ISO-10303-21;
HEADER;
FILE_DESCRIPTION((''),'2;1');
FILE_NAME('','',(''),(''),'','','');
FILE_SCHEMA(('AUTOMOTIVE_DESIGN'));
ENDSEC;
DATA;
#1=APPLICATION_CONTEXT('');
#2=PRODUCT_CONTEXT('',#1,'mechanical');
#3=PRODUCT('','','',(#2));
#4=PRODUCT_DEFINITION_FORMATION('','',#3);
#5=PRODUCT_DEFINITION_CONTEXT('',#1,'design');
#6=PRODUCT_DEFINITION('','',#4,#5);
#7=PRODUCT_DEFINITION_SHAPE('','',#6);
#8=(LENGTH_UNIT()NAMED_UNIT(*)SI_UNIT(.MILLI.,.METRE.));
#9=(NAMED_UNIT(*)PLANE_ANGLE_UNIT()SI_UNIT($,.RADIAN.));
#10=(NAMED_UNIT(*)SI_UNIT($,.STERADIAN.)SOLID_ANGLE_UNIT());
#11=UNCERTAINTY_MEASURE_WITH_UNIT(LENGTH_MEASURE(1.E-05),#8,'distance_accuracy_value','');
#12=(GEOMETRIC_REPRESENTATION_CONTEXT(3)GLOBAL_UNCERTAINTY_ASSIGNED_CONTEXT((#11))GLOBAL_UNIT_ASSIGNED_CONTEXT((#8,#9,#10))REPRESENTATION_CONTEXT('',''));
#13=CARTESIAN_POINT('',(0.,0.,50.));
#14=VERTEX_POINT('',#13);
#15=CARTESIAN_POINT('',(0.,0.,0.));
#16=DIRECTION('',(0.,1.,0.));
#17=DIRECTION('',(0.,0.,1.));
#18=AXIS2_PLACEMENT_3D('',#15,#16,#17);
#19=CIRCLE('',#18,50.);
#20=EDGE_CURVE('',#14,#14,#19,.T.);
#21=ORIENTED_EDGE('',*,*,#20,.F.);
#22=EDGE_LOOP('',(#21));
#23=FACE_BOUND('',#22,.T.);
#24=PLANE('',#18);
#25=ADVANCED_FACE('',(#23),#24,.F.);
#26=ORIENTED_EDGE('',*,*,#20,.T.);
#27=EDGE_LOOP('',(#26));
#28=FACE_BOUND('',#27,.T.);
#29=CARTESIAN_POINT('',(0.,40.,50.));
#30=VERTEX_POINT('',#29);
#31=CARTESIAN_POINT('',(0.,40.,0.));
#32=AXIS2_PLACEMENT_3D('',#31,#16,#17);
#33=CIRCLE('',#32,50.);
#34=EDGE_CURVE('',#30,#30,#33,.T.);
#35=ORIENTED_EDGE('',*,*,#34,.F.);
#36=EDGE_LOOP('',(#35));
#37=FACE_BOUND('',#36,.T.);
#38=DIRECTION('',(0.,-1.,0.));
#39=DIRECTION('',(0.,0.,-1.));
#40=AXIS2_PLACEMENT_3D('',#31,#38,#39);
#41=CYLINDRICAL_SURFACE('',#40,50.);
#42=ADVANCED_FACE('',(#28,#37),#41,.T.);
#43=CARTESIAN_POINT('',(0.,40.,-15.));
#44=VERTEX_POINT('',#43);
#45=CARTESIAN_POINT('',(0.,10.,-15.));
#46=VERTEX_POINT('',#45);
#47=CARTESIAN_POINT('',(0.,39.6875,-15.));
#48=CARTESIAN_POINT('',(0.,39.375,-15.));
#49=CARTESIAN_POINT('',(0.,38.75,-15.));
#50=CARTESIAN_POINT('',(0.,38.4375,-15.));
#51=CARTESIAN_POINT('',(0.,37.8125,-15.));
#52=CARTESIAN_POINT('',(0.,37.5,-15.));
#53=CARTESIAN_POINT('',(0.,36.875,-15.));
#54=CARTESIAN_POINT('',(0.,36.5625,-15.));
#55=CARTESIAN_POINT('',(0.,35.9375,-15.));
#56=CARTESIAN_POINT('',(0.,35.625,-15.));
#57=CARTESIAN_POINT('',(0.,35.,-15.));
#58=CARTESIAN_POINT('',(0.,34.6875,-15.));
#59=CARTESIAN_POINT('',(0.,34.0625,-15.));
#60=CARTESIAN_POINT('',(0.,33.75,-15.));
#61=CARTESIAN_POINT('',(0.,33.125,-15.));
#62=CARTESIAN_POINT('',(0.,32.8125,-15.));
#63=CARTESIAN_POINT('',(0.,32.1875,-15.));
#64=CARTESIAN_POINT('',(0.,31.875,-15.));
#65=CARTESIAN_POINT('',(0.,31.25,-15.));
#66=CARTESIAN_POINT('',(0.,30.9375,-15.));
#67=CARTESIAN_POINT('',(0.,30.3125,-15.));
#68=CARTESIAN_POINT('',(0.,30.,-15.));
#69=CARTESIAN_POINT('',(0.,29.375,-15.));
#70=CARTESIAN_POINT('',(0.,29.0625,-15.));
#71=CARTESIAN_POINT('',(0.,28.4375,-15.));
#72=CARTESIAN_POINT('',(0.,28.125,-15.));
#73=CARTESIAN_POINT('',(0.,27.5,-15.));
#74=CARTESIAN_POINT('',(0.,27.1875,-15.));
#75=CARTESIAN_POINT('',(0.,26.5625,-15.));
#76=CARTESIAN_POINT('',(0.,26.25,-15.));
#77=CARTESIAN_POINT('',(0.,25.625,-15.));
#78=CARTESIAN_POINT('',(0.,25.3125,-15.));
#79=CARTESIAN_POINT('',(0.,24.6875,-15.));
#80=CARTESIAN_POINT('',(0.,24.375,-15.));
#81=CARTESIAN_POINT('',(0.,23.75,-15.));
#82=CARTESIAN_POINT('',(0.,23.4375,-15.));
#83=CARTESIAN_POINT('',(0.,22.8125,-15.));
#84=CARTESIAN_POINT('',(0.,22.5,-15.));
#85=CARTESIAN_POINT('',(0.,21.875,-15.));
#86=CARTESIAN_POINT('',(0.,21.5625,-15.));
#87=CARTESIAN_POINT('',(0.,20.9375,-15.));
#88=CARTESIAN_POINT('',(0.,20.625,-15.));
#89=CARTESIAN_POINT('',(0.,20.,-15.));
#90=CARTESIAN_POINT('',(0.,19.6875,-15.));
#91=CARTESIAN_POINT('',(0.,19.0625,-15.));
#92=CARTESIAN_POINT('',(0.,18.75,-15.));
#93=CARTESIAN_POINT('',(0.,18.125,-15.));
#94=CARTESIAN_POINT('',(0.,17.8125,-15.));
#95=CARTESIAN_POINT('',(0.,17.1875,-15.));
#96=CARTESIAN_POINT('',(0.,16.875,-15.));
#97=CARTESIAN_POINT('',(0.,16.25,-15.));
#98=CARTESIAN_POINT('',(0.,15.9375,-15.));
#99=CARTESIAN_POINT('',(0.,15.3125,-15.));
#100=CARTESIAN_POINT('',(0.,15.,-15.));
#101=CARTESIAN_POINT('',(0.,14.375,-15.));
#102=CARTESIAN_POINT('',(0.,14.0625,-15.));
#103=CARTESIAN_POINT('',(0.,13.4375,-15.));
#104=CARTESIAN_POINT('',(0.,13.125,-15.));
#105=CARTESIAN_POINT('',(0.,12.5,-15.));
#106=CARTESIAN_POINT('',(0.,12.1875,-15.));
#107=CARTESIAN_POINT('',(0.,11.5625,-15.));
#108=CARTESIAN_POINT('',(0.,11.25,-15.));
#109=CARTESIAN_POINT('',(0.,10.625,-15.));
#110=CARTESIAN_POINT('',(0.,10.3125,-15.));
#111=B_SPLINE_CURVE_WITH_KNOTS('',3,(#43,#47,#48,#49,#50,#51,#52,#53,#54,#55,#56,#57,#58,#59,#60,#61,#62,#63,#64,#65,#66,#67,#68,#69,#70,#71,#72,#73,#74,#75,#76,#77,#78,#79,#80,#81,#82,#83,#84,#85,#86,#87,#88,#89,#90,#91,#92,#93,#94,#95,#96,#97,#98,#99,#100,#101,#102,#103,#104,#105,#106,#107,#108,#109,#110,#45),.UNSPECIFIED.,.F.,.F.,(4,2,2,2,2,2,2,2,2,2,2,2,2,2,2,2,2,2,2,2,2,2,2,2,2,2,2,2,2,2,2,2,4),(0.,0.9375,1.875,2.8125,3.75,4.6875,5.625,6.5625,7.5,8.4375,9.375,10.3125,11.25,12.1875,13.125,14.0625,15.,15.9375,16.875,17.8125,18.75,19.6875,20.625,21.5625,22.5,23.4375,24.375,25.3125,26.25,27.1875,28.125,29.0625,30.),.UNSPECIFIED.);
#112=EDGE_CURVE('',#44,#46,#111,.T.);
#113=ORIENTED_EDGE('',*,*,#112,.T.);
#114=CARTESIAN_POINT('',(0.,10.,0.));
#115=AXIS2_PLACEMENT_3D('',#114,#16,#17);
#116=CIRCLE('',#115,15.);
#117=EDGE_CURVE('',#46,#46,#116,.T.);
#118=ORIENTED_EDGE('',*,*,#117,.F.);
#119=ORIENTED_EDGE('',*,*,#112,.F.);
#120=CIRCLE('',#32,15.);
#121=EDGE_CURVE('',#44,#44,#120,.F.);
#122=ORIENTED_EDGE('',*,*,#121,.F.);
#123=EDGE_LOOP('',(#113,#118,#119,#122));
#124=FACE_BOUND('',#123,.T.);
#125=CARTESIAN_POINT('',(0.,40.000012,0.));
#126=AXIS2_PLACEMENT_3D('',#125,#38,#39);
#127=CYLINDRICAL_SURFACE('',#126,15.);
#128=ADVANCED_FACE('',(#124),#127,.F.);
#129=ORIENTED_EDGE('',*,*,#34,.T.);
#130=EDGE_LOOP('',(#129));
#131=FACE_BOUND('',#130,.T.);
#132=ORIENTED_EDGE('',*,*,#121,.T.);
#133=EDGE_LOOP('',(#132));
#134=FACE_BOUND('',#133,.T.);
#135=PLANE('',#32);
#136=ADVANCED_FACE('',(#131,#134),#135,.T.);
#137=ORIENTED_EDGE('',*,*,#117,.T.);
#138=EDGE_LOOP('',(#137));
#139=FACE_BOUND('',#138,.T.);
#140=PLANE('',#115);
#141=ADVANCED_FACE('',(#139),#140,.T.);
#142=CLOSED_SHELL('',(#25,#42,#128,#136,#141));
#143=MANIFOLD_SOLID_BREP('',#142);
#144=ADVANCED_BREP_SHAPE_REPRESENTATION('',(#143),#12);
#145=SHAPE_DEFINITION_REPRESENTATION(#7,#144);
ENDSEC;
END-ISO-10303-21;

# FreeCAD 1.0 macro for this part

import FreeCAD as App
import Part
import Sketcher
Q = App.Units.Quantity

doc = App.newDocument("Part")
body = doc.addObject("PartDesign::Body", "Body")

sketch1 = body.newObject("Sketcher::SketchObject", "Sketch")
sketch1.AttachmentSupport = (doc.getObject("XZ_Plane"), [""])
sketch1.MapMode = "FlatFace"
sketch1.addGeometry(Part.Circle(App.Vector(0, 0, 0), App.Vector(0, 0, 1), 50), False)
sketch1.addConstraint(Sketcher.Constraint("Coincident", 0, 3, -1, 1))
sketch1.addConstraint(Sketcher.Constraint("Diameter", 0, Q("100 mm")))
pad1 = body.newObject("PartDesign::Pad", "Pad")
pad1.Profile = sketch1
pad1.Length = 40
pad1.Reversed = True

sketch2 = body.newObject("Sketcher::SketchObject", "Sketch001")
sketch2.AttachmentSupport = (doc.getObject("XZ_Plane"), [""])
sketch2.MapMode = "FlatFace"
sketch2.AttachmentOffset = App.Placement(App.Vector(0, 0, -40), App.Rotation())
sketch2.addGeometry(Part.Circle(App.Vector(0, 0, 0), App.Vector(0, 0, 1), 15), False)
sketch2.addConstraint(Sketcher.Constraint("Coincident", 0, 3, -1, 1))
sketch2.addConstraint(Sketcher.Constraint("Diameter", 0, Q("30 mm")))
pocket1 = body.newObject("PartDesign::Pocket", "Pocket")
pocket1.Profile = sketch2
pocket1.Type = "TwoLengths"
pocket1.Length = 82.240384
pocket1.Length2 = 30

doc.recompute()
